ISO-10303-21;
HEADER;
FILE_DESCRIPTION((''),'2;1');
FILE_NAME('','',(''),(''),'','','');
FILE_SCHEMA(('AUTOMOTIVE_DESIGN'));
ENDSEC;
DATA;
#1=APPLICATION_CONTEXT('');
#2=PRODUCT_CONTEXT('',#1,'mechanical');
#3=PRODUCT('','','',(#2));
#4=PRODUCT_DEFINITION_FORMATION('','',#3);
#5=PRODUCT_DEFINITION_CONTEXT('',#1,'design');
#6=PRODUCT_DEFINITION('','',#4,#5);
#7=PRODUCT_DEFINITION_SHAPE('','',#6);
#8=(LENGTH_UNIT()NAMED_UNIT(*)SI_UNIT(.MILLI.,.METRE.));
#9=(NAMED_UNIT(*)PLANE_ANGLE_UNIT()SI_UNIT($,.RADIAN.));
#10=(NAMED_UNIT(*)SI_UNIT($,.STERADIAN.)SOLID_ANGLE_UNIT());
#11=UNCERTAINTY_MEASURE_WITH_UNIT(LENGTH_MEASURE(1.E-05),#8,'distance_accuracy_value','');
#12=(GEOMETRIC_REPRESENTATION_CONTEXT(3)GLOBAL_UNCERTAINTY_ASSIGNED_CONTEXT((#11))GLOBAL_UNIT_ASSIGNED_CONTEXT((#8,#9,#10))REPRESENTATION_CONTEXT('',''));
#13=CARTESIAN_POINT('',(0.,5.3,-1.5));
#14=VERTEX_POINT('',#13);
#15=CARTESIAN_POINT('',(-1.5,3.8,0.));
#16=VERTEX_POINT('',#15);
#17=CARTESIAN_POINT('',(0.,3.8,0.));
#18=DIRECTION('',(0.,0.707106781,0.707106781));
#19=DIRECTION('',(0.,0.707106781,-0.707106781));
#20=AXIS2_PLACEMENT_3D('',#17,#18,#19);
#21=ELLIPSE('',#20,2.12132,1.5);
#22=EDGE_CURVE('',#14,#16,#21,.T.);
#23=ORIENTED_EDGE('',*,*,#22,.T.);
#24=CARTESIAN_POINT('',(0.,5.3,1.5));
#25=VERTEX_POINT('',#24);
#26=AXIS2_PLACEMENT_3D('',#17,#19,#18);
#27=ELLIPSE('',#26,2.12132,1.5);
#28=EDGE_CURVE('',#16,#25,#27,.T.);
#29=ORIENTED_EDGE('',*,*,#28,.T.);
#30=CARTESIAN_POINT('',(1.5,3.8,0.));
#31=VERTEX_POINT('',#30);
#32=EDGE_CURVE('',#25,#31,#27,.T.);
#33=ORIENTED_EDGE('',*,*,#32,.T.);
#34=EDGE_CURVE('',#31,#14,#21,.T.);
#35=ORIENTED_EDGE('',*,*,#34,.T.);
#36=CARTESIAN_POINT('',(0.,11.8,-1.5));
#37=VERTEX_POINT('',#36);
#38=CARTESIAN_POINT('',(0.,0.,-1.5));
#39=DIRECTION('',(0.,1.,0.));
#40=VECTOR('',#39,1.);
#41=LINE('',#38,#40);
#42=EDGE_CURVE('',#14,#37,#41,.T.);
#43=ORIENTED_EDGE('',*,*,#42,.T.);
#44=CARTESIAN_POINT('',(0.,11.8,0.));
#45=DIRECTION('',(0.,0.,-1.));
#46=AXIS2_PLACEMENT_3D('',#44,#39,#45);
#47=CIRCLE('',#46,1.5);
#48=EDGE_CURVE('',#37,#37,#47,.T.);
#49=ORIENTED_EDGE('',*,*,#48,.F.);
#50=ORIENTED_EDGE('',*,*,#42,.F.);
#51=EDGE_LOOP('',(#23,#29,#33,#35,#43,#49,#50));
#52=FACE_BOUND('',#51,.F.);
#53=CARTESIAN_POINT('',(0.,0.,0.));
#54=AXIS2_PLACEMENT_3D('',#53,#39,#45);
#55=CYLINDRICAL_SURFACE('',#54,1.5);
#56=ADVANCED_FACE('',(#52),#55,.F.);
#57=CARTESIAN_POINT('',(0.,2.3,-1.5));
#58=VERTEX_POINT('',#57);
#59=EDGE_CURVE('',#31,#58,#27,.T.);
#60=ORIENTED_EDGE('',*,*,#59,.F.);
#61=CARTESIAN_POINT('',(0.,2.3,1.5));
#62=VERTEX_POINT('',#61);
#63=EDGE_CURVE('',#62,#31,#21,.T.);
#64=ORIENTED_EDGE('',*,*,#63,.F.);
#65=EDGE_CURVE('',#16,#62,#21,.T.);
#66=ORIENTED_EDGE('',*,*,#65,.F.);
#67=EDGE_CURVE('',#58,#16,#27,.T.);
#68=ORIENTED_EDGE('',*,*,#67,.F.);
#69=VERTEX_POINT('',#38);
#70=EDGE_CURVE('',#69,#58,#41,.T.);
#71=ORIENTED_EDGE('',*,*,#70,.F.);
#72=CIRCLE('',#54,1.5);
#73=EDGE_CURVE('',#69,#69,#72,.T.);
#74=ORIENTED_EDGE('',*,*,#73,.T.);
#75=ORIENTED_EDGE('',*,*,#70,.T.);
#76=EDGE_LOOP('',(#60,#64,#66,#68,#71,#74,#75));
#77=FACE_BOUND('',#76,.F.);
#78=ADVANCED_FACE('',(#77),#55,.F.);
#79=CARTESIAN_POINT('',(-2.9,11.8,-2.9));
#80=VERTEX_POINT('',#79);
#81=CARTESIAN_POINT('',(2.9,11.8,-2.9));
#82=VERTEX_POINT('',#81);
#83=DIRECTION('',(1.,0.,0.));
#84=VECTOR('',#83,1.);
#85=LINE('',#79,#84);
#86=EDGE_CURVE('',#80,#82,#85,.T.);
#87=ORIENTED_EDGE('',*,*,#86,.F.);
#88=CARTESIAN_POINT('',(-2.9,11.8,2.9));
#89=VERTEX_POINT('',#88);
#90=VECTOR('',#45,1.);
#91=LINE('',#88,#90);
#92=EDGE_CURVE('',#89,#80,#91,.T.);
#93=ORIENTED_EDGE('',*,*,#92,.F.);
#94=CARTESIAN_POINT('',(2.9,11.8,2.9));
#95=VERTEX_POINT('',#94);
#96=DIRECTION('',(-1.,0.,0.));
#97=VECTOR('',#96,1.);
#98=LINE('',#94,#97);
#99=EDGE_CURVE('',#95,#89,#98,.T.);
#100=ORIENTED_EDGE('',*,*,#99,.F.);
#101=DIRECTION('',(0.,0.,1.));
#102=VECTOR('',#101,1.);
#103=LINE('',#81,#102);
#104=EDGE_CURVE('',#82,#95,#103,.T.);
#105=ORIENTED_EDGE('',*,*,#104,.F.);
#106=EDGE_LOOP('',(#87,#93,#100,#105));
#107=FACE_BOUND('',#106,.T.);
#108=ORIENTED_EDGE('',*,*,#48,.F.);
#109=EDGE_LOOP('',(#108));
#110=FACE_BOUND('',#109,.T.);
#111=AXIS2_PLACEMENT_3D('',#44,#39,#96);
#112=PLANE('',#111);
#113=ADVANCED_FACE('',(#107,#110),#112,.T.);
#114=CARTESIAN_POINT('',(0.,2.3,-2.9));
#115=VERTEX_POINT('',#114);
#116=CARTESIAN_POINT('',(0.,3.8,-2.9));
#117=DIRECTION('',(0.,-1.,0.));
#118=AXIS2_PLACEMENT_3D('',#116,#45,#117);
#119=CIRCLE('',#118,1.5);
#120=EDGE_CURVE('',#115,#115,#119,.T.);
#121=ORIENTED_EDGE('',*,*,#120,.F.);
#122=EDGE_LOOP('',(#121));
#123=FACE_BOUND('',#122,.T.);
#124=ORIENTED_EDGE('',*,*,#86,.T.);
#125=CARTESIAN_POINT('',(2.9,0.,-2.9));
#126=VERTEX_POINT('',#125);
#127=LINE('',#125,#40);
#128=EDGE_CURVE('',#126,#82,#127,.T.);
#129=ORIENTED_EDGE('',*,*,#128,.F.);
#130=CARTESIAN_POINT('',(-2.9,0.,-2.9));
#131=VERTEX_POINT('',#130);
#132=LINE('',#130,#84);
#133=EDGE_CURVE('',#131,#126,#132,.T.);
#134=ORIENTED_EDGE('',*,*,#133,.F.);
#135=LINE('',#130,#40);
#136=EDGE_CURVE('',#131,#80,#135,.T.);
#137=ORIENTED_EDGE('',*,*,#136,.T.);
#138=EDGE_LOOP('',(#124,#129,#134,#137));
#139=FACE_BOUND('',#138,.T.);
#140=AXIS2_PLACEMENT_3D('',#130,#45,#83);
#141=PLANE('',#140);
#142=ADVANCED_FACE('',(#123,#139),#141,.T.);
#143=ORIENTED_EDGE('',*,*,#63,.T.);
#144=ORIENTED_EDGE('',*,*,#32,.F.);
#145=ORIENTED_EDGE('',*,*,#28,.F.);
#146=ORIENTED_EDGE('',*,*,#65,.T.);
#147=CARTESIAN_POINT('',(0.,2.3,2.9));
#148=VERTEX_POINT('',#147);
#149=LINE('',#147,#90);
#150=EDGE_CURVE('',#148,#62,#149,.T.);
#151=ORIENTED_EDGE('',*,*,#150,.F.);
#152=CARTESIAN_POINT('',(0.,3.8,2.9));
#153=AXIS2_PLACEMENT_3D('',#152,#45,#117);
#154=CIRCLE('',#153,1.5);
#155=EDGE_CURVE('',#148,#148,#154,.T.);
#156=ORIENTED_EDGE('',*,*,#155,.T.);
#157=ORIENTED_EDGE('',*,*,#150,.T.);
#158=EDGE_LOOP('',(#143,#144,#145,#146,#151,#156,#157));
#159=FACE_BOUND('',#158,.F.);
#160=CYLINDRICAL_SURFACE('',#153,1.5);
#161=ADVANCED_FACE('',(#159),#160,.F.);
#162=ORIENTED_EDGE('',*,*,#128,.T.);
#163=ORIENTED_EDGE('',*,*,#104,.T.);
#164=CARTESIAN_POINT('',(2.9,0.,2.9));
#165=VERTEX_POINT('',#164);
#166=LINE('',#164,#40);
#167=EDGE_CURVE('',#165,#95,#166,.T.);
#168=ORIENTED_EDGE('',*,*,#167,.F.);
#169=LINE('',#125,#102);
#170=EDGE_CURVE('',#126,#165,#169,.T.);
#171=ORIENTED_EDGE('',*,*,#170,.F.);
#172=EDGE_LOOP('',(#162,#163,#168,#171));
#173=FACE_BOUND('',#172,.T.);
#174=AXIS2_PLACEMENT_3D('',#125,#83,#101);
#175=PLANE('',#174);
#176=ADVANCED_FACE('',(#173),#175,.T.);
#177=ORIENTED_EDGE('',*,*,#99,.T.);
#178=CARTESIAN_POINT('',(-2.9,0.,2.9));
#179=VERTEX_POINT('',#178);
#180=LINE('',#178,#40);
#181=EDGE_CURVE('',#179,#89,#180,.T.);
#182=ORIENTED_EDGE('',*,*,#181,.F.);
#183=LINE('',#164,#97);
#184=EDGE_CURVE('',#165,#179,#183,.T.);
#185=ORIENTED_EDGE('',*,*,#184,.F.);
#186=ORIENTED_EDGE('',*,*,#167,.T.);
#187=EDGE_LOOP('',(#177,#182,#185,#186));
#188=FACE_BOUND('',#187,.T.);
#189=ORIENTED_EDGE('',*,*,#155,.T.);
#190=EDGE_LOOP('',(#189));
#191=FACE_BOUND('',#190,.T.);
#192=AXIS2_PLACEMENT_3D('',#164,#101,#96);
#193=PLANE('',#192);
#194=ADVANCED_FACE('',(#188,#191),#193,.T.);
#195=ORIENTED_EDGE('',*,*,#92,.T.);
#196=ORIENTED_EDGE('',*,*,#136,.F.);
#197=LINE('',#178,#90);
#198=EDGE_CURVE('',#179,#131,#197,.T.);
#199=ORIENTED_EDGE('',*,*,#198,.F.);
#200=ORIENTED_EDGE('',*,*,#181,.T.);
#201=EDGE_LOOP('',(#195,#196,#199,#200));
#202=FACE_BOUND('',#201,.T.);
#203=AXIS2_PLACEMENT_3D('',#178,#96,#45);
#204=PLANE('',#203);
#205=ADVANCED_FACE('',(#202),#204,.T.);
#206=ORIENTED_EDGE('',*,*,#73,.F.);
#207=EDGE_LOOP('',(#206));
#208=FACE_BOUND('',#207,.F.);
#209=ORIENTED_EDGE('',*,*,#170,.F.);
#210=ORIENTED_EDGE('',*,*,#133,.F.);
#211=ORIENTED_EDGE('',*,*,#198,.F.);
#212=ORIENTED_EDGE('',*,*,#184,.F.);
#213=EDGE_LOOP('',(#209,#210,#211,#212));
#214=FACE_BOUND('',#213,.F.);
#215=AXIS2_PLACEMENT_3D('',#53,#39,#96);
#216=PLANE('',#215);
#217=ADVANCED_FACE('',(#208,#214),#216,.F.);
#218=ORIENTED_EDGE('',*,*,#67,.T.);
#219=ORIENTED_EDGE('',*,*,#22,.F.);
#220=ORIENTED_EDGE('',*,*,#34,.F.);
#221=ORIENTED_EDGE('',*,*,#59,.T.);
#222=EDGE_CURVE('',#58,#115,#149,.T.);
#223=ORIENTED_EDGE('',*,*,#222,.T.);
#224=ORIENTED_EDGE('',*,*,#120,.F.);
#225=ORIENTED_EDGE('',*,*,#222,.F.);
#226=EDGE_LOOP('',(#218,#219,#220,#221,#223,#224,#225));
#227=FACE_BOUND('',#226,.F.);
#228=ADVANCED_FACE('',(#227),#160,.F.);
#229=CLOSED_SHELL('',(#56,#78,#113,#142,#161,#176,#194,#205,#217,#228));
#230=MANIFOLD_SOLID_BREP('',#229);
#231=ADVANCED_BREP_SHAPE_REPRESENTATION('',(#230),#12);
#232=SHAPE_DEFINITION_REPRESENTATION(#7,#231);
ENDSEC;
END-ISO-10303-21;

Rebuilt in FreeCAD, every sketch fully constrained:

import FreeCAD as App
import Part
import Sketcher
Q = App.Units.Quantity


def add_polygon(sketch, points):
    """Adds a closed chain of lines whose ends are joined by coincident constraints."""
    first, n = sketch.GeometryCount, len(points)
    for a, b in zip(points, points[1:] + points[:1]):
        sketch.addGeometry(Part.LineSegment(App.Vector(*a, 0), App.Vector(*b, 0)), False)
    for i in range(n):
        sketch.addConstraint(Sketcher.Constraint("Coincident", first + i, 2, first + (i + 1) % n, 1))

doc = App.newDocument("Part")
body = doc.addObject("PartDesign::Body", "Body")

# Sketch on XZ plane
sketch1 = body.newObject("Sketcher::SketchObject", "Sketch")
sketch1.AttachmentSupport = (doc.getObject("XZ_Plane"), [""])
sketch1.MapMode = "FlatFace"
add_polygon(sketch1, [(-3, 3), (3, 3), (3, -3), (-3, -3)])  # lines 0-3
sketch1.addConstraint([
    Sketcher.Constraint("Horizontal", 0),
    Sketcher.Constraint("Vertical", 1),
    Sketcher.Constraint("Horizontal", 2),
    Sketcher.Constraint("Vertical", 3),
    Sketcher.Constraint("Symmetric", 0, 2, 2, 2, -1, 1),
    Sketcher.Constraint("Equal", 2, 1),
    Sketcher.Constraint("DistanceX", 0, 1, 0, 2, Q("5.8 mm")),
])
pad1 = body.newObject("PartDesign::Pad", "Pad")
pad1.Profile = sketch1
pad1.Length = 11.8
pad1.Reversed = True

# Sketch on XZ plane
sketch2 = body.newObject("Sketcher::SketchObject", "Sketch001")
sketch2.AttachmentSupport = (doc.getObject("XZ_Plane"), [""])
sketch2.MapMode = "FlatFace"
sketch2.addGeometry(Part.Circle(App.Vector(0, 0, 0), App.Vector(0, 0, 1), 1.5), False)
sketch2.addConstraint([
    Sketcher.Constraint("Coincident", 0, 3, -1, 1),
    Sketcher.Constraint("Diameter", 0, Q("3 mm")),
])
doc.recompute()
hole = body.newObject("PartDesign::Hole", "Hole")
hole.Profile = sketch2
hole.ThreadType = "None"
hole.Diameter = 3
hole.DepthType = "ThroughAll"

# Sketch on XY plane
sketch3 = body.newObject("Sketcher::SketchObject", "Sketch002")
sketch3.AttachmentSupport = (doc.getObject("XY_Plane"), [""])
sketch3.MapMode = "FlatFace"
sketch3.AttachmentOffset = App.Placement(App.Vector(0, 0, 2.9), App.Rotation())
sketch3.addGeometry(Part.Circle(App.Vector(0, 3.8, 0), App.Vector(0, 0, 1), 1.5), False)
sketch3.addConstraint([
    Sketcher.Constraint("PointOnObject", 0, 3, -2),
    Sketcher.Constraint("Diameter", 0, Q("3 mm")),
    Sketcher.Constraint("DistanceY", -1, 1, 0, 3, Q("3.8 mm")),
])
doc.recompute()
hole2 = body.newObject("PartDesign::Hole", "Hole001")
hole2.Profile = sketch3
hole2.ThreadType = "None"
hole2.Diameter = 3
hole2.DepthType = "ThroughAll"

doc.recompute()
